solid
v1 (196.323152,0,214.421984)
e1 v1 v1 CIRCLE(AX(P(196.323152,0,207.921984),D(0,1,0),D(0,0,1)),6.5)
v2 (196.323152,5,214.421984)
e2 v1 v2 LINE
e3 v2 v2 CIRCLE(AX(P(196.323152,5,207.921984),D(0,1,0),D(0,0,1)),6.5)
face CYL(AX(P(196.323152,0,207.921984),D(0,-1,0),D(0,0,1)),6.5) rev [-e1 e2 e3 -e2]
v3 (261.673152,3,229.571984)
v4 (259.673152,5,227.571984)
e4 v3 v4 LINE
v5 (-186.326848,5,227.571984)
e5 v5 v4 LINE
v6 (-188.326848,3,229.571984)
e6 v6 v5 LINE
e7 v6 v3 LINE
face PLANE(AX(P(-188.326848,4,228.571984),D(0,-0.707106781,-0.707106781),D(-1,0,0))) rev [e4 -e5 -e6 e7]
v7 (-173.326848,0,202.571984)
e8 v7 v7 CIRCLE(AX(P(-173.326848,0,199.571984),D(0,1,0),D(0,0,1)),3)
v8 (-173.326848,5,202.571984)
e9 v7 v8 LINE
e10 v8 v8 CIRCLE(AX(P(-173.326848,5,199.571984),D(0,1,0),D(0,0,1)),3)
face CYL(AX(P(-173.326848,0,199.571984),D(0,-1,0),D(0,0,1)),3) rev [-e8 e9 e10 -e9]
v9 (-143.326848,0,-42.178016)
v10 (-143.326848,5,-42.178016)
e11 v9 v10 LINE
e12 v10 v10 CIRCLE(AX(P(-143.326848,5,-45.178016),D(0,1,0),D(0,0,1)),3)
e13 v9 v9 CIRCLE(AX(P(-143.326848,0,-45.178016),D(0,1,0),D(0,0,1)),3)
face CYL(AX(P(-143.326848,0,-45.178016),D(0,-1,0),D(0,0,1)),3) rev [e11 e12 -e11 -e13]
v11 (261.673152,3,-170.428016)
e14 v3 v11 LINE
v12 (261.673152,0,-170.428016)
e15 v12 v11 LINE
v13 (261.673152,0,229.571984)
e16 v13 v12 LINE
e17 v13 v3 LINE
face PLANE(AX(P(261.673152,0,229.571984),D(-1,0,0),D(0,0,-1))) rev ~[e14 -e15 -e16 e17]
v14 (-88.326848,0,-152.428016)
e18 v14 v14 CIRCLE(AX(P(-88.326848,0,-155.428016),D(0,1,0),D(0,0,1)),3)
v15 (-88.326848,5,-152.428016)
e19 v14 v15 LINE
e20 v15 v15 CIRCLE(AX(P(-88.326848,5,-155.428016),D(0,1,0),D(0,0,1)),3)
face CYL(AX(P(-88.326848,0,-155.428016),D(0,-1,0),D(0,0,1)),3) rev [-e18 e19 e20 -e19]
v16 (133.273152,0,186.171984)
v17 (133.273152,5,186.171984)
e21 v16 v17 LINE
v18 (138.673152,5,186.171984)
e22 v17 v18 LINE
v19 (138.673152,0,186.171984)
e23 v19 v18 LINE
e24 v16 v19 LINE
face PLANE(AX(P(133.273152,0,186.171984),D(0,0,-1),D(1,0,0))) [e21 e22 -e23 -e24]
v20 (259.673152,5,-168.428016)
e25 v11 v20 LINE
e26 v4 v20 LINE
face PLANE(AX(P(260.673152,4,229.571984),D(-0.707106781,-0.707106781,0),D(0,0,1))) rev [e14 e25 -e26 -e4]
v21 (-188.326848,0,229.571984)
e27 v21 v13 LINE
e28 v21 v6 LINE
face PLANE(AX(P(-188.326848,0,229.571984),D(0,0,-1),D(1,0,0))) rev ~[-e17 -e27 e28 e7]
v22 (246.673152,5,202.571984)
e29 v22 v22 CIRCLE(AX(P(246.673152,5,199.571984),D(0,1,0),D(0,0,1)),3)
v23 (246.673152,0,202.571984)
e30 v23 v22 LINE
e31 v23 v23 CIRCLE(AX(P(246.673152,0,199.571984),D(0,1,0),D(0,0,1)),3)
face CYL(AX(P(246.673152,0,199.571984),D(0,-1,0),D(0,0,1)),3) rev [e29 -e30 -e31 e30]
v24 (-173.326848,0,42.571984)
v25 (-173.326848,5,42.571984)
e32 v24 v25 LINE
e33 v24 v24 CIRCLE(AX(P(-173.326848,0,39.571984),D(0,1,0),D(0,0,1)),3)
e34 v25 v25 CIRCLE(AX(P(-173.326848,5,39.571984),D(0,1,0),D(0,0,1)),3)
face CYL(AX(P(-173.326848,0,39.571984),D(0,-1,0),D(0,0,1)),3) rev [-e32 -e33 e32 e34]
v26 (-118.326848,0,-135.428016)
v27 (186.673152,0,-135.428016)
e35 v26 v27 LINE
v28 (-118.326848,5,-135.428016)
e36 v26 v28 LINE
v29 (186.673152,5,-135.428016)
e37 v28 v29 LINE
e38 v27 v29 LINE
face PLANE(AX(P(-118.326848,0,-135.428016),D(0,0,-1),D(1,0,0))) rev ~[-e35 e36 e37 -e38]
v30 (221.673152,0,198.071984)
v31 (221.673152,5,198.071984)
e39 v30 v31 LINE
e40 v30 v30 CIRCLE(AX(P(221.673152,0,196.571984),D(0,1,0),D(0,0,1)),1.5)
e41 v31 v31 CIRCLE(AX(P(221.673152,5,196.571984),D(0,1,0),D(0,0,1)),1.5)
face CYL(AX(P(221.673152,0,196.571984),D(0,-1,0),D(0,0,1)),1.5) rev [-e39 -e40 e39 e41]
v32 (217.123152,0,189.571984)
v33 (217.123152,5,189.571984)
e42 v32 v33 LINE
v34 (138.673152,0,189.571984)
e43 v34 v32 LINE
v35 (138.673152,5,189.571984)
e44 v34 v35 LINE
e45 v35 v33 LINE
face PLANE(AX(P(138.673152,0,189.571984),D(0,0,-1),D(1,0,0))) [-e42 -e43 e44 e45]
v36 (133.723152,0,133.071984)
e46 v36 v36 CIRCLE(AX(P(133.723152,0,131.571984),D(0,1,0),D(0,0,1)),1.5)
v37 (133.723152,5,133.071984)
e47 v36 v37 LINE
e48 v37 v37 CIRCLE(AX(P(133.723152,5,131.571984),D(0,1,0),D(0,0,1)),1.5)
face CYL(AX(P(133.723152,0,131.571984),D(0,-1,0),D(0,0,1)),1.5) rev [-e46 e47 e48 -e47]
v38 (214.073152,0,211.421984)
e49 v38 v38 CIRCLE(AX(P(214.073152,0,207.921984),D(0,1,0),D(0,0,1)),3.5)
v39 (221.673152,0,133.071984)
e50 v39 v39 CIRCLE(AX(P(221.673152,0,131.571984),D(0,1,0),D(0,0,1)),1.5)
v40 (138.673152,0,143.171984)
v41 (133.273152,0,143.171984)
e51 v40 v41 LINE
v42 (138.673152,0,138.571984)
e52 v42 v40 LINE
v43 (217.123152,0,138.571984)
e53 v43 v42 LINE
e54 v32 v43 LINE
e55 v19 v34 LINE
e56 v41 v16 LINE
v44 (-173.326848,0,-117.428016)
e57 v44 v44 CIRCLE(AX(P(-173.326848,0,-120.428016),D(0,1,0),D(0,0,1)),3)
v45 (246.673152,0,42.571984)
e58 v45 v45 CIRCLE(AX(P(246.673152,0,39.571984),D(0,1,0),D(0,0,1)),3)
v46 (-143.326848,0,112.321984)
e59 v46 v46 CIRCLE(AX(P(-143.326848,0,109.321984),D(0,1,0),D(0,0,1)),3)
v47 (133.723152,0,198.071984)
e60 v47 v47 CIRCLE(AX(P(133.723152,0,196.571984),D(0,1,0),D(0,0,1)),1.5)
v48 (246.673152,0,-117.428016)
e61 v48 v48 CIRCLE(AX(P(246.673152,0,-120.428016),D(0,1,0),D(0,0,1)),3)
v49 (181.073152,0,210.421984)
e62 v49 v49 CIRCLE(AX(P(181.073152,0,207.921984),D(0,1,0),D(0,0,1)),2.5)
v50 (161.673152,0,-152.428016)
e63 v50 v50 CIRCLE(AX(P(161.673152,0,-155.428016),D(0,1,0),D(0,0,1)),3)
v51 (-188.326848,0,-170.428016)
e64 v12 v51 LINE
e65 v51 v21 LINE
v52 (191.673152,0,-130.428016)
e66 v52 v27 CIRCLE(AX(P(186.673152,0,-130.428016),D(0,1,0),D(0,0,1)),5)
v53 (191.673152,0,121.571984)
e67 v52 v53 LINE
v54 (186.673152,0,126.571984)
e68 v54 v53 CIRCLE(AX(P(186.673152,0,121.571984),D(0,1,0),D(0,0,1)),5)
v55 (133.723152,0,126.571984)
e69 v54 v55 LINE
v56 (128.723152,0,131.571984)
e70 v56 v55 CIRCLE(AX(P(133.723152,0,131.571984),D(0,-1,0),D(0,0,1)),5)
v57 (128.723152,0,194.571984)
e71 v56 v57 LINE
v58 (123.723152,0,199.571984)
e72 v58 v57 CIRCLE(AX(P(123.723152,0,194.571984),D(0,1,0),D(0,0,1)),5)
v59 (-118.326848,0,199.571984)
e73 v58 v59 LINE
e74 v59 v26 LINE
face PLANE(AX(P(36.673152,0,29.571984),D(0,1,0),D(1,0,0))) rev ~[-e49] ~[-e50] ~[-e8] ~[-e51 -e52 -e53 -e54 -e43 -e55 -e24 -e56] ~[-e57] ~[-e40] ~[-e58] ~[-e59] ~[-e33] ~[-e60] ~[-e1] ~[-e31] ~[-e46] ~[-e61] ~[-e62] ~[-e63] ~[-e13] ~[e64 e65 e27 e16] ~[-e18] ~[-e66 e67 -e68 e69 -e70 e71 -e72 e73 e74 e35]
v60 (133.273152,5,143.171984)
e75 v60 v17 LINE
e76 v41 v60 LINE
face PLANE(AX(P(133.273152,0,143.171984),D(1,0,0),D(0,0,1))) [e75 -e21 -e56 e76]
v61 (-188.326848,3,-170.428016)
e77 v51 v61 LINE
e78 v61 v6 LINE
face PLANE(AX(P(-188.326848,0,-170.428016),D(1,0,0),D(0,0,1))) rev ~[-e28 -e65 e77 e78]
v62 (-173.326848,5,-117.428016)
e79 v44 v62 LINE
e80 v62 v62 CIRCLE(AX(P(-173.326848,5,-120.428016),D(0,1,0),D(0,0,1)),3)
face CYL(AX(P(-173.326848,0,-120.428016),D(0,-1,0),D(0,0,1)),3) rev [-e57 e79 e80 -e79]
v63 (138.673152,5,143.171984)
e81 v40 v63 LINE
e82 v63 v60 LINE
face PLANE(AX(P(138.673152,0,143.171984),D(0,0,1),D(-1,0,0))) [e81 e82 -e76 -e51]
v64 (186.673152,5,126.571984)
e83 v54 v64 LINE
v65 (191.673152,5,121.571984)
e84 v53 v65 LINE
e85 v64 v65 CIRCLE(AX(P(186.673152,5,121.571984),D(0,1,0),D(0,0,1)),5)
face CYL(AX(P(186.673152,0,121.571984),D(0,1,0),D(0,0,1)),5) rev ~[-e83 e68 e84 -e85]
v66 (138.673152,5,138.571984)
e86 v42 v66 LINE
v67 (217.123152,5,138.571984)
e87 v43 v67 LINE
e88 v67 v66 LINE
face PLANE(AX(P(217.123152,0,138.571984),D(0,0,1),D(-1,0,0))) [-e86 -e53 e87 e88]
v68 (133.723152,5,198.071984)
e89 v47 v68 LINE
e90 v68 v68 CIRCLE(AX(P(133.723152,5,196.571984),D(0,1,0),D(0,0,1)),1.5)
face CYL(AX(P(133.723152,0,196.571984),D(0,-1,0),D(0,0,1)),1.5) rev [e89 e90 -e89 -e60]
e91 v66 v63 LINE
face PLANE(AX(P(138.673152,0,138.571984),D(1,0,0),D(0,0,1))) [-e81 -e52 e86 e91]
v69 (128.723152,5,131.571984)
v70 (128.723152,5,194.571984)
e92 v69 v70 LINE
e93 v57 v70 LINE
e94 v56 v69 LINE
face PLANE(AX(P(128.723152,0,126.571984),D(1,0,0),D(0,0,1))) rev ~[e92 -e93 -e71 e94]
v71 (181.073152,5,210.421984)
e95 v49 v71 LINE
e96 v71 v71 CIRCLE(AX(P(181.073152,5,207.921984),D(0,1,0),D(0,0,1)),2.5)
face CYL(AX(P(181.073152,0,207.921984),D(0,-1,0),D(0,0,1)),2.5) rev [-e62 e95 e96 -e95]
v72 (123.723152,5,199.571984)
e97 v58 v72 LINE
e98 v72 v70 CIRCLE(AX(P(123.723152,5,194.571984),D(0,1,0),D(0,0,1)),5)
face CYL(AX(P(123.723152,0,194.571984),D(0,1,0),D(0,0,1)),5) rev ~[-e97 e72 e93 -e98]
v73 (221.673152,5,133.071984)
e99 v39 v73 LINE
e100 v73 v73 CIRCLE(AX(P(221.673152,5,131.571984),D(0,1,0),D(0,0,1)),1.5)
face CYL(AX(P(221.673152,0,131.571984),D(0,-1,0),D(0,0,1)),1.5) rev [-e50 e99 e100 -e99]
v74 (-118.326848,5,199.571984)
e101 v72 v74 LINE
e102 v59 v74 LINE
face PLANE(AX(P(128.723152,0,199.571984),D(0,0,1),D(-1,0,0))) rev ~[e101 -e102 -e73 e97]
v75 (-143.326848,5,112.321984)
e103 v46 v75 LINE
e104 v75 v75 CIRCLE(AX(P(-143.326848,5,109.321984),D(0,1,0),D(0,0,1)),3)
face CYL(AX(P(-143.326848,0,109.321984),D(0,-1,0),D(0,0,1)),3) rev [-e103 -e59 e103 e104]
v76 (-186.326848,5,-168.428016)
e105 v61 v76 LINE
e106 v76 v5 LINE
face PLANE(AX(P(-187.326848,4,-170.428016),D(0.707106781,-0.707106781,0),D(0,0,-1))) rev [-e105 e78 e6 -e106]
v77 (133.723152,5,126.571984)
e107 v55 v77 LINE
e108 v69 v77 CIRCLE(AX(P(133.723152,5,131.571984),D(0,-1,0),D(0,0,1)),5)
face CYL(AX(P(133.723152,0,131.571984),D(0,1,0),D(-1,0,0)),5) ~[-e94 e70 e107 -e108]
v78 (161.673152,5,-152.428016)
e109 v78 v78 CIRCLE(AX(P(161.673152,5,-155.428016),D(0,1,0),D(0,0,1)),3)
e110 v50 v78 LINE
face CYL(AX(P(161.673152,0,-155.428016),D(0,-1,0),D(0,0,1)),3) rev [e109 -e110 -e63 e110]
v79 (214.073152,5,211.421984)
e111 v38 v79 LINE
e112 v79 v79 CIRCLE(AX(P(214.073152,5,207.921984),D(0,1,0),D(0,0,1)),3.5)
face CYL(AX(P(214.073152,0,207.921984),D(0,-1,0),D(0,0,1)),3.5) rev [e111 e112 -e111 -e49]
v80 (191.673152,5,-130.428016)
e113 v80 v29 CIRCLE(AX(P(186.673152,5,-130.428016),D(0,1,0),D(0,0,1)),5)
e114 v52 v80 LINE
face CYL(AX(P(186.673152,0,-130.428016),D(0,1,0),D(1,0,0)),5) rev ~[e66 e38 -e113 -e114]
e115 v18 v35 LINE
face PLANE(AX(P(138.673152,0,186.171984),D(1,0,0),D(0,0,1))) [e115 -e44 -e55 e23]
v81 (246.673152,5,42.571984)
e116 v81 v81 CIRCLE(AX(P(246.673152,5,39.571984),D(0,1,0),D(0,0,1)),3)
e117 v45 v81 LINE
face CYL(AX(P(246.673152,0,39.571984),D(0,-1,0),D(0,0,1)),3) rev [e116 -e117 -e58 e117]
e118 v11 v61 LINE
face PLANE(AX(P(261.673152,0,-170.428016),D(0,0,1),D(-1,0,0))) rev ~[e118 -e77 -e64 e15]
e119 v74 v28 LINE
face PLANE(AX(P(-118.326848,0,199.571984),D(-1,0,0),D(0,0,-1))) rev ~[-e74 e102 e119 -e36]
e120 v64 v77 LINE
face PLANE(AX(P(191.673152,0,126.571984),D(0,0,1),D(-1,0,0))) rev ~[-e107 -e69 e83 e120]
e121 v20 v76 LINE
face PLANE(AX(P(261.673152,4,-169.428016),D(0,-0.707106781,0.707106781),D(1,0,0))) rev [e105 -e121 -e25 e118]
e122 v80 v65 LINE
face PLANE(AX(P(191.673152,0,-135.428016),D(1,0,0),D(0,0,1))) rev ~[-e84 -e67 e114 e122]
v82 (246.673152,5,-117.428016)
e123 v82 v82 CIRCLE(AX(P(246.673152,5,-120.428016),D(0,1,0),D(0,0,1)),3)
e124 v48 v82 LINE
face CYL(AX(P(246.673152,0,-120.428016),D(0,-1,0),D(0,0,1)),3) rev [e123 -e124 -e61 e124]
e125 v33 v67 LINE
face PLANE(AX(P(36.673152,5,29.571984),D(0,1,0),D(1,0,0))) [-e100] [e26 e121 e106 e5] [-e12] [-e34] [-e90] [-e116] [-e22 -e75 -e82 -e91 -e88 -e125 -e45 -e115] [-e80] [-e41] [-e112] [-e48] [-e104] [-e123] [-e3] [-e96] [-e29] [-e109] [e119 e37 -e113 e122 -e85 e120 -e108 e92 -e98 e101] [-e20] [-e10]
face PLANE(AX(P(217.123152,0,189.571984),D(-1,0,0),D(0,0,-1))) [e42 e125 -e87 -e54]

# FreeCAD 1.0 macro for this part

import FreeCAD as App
import Part
import Sketcher

V = App.Vector


def edges_at(feature, points):
    """Names of the edges that pass closest to the given points."""
    edges = feature.Shape.Edges
    near = lambda p: min(range(len(edges)), key=lambda i: edges[i].distToShape(Part.Vertex(*p))[0])
    return sorted({f"Edge{near(p) + 1}" for p in points})

doc = App.newDocument("Part")
body = doc.addObject("PartDesign::Body", "Body")

# Sketch on XZ plane
sketch1 = body.newObject("Sketcher::SketchObject", "Sketch")
sketch1.AttachmentSupport = (doc.getObject("XZ_Plane"), [""])
sketch1.MapMode = "FlatFace"
sketch1.addGeometry([
    Part.LineSegment(V(261.673152, 229.571984, 0), V(261.673152, -170.428016, 0)),  # 0
    Part.LineSegment(V(261.673152, -170.428016, 0), V(-188.326848, -170.428016, 0)),  # 1
    Part.LineSegment(V(-188.326848, -170.428016, 0), V(-188.326848, 229.571984, 0)),  # 2
    Part.LineSegment(V(-188.326848, 229.571984, 0), V(261.673152, 229.571984, 0)),  # 3
    Part.Circle(V(-173.326848, 199.571984, 0), V(0, 0, 1), 3),  # 4
    Part.Circle(V(-143.326848, 109.321984, 0), V(0, 0, 1), 3),  # 5
    Part.Circle(V(-173.326848, 39.571984, 0), V(0, 0, 1), 3),  # 6
    Part.Circle(V(133.723152, 196.571984, 0), V(0, 0, 1), 1.5),  # 7
    Part.Circle(V(133.723152, 131.571984, 0), V(0, 0, 1), 1.5),  # 8
    Part.Circle(V(181.073152, 207.921984, 0), V(0, 0, 1), 2.5),  # 9
    Part.Circle(V(196.323152, 207.921984, 0), V(0, 0, 1), 6.5),  # 10
    Part.Circle(V(214.073152, 207.921984, 0), V(0, 0, 1), 3.5),  # 11
    Part.Circle(V(221.673152, 196.571984, 0), V(0, 0, 1), 1.5),  # 12
    Part.Circle(V(246.673152, 199.571984, 0), V(0, 0, 1), 3),  # 13
    Part.LineSegment(V(138.673152, 189.571984, 0), V(138.673152, 186.171984, 0)),  # 14
    Part.LineSegment(V(138.673152, 186.171984, 0), V(133.273152, 186.171984, 0)),  # 15
    Part.LineSegment(V(133.273152, 186.171984, 0), V(133.273152, 143.171984, 0)),  # 16
    Part.LineSegment(V(133.273152, 143.171984, 0), V(138.673152, 143.171984, 0)),  # 17
    Part.LineSegment(V(138.673152, 143.171984, 0), V(138.673152, 138.571984, 0)),  # 18
    Part.LineSegment(V(138.673152, 138.571984, 0), V(217.123152, 138.571984, 0)),  # 19
    Part.LineSegment(V(217.123152, 138.571984, 0), V(217.123152, 189.571984, 0)),  # 20
    Part.LineSegment(V(217.123152, 189.571984, 0), V(138.673152, 189.571984, 0)),  # 21
    Part.Circle(V(221.673152, 131.571984, 0), V(0, 0, 1), 1.5),  # 22
    Part.LineSegment(V(128.723152, 199.571984, 0), V(-118.326848, 199.571984, 0)),  # 23
    Part.LineSegment(V(-118.326848, 199.571984, 0), V(-118.326848, -135.428016, 0)),  # 24
    Part.LineSegment(V(-118.326848, -135.428016, 0), V(191.673152, -135.428016, 0)),  # 25
    Part.LineSegment(V(191.673152, -135.428016, 0), V(191.673152, 126.571984, 0)),  # 26
    Part.LineSegment(V(191.673152, 126.571984, 0), V(128.723152, 126.571984, 0)),  # 27
    Part.LineSegment(V(128.723152, 126.571984, 0), V(128.723152, 199.571984, 0)),  # 28
    Part.Circle(V(246.673152, 39.571984, 0), V(0, 0, 1), 3),  # 29
    Part.Circle(V(-143.326848, -45.178016, 0), V(0, 0, 1), 3),  # 30
    Part.Circle(V(-173.326848, -120.428016, 0), V(0, 0, 1), 3),  # 31
    Part.Circle(V(-88.326848, -155.428016, 0), V(0, 0, 1), 3),  # 32
    Part.Circle(V(161.673152, -155.428016, 0), V(0, 0, 1), 3),  # 33
    Part.Circle(V(246.673152, -120.428016, 0), V(0, 0, 1), 3),  # 34
], False)
sketch1.addConstraint([
    Sketcher.Constraint("Coincident", 0, 2, 1, 1),
    Sketcher.Constraint("Coincident", 1, 2, 2, 1),
    Sketcher.Constraint("Coincident", 2, 2, 3, 1),
    Sketcher.Constraint("Coincident", 3, 2, 0, 1),
    Sketcher.Constraint("Coincident", 14, 2, 15, 1),
    Sketcher.Constraint("Coincident", 15, 2, 16, 1),
    Sketcher.Constraint("Coincident", 16, 2, 17, 1),
    Sketcher.Constraint("Coincident", 17, 2, 18, 1),
    Sketcher.Constraint("Coincident", 18, 2, 19, 1),
    Sketcher.Constraint("Coincident", 19, 2, 20, 1),
    Sketcher.Constraint("Coincident", 20, 2, 21, 1),
    Sketcher.Constraint("Coincident", 21, 2, 14, 1),
    Sketcher.Constraint("Coincident", 23, 2, 24, 1),
    Sketcher.Constraint("Coincident", 24, 2, 25, 1),
    Sketcher.Constraint("Coincident", 25, 2, 26, 1),
    Sketcher.Constraint("Coincident", 26, 2, 27, 1),
    Sketcher.Constraint("Coincident", 27, 2, 28, 1),
    Sketcher.Constraint("Coincident", 28, 2, 23, 1),
    Sketcher.Constraint("Vertical", 0),
    Sketcher.Constraint("Horizontal", 1),
    Sketcher.Constraint("Vertical", 2),
    Sketcher.Constraint("Horizontal", 3),
    Sketcher.Constraint("Vertical", 14),
    Sketcher.Constraint("Horizontal", 15),
    Sketcher.Constraint("Vertical", 16),
    Sketcher.Constraint("Horizontal", 17),
    Sketcher.Constraint("Vertical", 18),
    Sketcher.Constraint("Horizontal", 19),
    Sketcher.Constraint("Vertical", 20),
    Sketcher.Constraint("Horizontal", 21),
    Sketcher.Constraint("Horizontal", 23),
    Sketcher.Constraint("Vertical", 24),
    Sketcher.Constraint("Horizontal", 25),
    Sketcher.Constraint("Vertical", 26),
    Sketcher.Constraint("Horizontal", 27),
    Sketcher.Constraint("Vertical", 28),
    Sketcher.Constraint("Equal", 4, 5),
    Sketcher.Constraint("Equal", 5, 6),
    Sketcher.Constraint("Equal", 7, 8),
    Sketcher.Constraint("Equal", 8, 12),
    Sketcher.Constraint("Equal", 6, 13),
    Sketcher.Constraint("Equal", 12, 22),
    Sketcher.Constraint("Equal", 13, 29),
    Sketcher.Constraint("Equal", 29, 30),
    Sketcher.Constraint("Equal", 30, 31),
    Sketcher.Constraint("Equal", 31, 32),
    Sketcher.Constraint("Equal", 32, 33),
    Sketcher.Constraint("Equal", 33, 34),
    Sketcher.Constraint("Horizontal", 9, 3, 10, 3),
    Sketcher.Constraint("Horizontal", 10, 3, 11, 3),
    Sketcher.Constraint("Horizontal", 7, 3, 12, 3),
    Sketcher.Constraint("Horizontal", 4, 3, 13, 3),
    Sketcher.Constraint("Horizontal", 8, 3, 22, 3),
    Sketcher.Constraint("Horizontal", 6, 3, 29, 3),
    Sketcher.Constraint("Horizontal", 32, 3, 33, 3),
    Sketcher.Constraint("Horizontal", 31, 3, 34, 3),
    Sketcher.Constraint("Horizontal", 13, 3, 23, 2),
    Sketcher.Constraint("Vertical", 4, 3, 6, 3),
    Sketcher.Constraint("Vertical", 7, 3, 8, 3),
    Sketcher.Constraint("Vertical", 12, 3, 22, 3),
    Sketcher.Constraint("Vertical", 13, 3, 29, 3),
    Sketcher.Constraint("Vertical", 5, 3, 30, 3),
    Sketcher.Constraint("Vertical", 6, 3, 31, 3),
    Sketcher.Constraint("Vertical", 29, 3, 34, 3),
    Sketcher.Constraint("Vertical", 14, 2, 17, 2),
    Sketcher.Constraint("Diameter", 4, 6.0),
    Sketcher.Constraint("Diameter", 7, 3.0),
    Sketcher.Constraint("Diameter", 9, 5.0),
    Sketcher.Constraint("Diameter", 10, 13.0),
    Sketcher.Constraint("Diameter", 11, 7.0),
    Sketcher.Constraint("DistanceX", 1, 2, 1, 1, 450.0),
    Sketcher.Constraint("DistanceX", 25, 1, 25, 2, 310.0),
    Sketcher.Constraint("DistanceY", 0, 2, 0, 1, 400.0),
    Sketcher.Constraint("DistanceY", 16, 2, 16, 1, 43.0),
    Sketcher.Constraint("DistanceY", 20, 1, 20, 2, 51.0),
    Sketcher.Constraint("DistanceY", 24, 2, 24, 1, 335.0),
    Sketcher.Constraint("DistanceY", 26, 1, 26, 2, 262.0),
    Sketcher.Constraint("DistanceX", 15, 2, 15, 1, 5.4),
    Sketcher.Constraint("DistanceY", 14, 2, 14, 1, 3.4),
    Sketcher.Constraint("DistanceX", 4, 3, 5, 3, 30.0),
    Sketcher.Constraint("DistanceY", 6, 3, 4, 3, 160.0),
    Sketcher.Constraint("DistanceY", 7, 3, 4, 3, 3.0),
    Sketcher.Constraint("DistanceY", 8, 3, 7, 3, 65.0),
    Sketcher.Constraint("DistanceX", 9, 3, 11, 3, 33.0),
    Sketcher.Constraint("DistanceX", 12, 3, 13, 3, 25.0),
    Sketcher.Constraint("DistanceY", 31, 3, 6, 3, 160.0),
    Sketcher.Constraint("DistanceX", 31, 3, 32, 3, 85.0),
    Sketcher.Constraint("DistanceY", 32, 3, 31, 3, 35.0),
    Sketcher.Constraint("DistanceX", 33, 3, 29, 3, 85.0),
    Sketcher.Constraint("DistanceX", 32, 3, 33, 3, 250.0),
    Sketcher.Constraint("DistanceX", 34, 3, 0, 2, 15.0),
    Sketcher.Constraint("DistanceY", 0, 2, 34, 3, 50.0),
    Sketcher.Constraint("DistanceY", 8, 3, 18, 2, 7.0),
    Sketcher.Constraint("DistanceX", 4, 3, 23, 2, 55.0),
    Sketcher.Constraint("DistanceX", 18, 2, 26, 2, 53.0),
    Sketcher.Constraint("DistanceX", 27, 2, 8, 3, 5.0),
    Sketcher.Constraint("DistanceX", 19, 1, 19, 2, 78.45),
    Sketcher.Constraint("DistanceX", 23, 2, 23, 1, 247.05),
    Sketcher.Constraint("DistanceX", 5, 3, 9, 3, 324.4),
    Sketcher.Constraint("DistanceY", 5, 3, 9, 3, 98.6),
    Sketcher.Constraint("DistanceX", 7, 3, 10, 3, 62.6),
    Sketcher.Constraint("DistanceY", 30, 3, 5, 3, 154.5),
    Sketcher.Constraint("DistanceY", 5, 3, 4, 3, 90.25),
    Sketcher.Constraint("DistanceX", 4, 3, -1, 1, 173.326848),
    Sketcher.Constraint("DistanceY", -1, 1, 4, 3, 199.571984),
])
pad1 = body.newObject("PartDesign::Pad", "Pad")
pad1.Profile = sketch1
pad1.Length = 5
pad1.Reversed = True
doc.recompute()

chamfer = body.newObject("PartDesign::Chamfer", "Chamfer")
chamfer.Base = (pad1, edges_at(pad1, [
    (261.673, 5, 29.572),
    (36.673, 5, -170.428),
    (-188.327, 5, 29.572),
    (36.673, 5, 229.572),
]))
chamfer.Size = 2
doc.recompute()

fillet = body.newObject("PartDesign::Fillet", "Fillet")
fillet.Base = (chamfer, edges_at(chamfer, [
    (191.673, 2.5, 126.572),
    (191.673, 2.5, -135.428),
    (128.723, 2.5, 199.572),
    (128.723, 2.5, 126.572),
]))
fillet.Radius = 5

doc.recompute()
